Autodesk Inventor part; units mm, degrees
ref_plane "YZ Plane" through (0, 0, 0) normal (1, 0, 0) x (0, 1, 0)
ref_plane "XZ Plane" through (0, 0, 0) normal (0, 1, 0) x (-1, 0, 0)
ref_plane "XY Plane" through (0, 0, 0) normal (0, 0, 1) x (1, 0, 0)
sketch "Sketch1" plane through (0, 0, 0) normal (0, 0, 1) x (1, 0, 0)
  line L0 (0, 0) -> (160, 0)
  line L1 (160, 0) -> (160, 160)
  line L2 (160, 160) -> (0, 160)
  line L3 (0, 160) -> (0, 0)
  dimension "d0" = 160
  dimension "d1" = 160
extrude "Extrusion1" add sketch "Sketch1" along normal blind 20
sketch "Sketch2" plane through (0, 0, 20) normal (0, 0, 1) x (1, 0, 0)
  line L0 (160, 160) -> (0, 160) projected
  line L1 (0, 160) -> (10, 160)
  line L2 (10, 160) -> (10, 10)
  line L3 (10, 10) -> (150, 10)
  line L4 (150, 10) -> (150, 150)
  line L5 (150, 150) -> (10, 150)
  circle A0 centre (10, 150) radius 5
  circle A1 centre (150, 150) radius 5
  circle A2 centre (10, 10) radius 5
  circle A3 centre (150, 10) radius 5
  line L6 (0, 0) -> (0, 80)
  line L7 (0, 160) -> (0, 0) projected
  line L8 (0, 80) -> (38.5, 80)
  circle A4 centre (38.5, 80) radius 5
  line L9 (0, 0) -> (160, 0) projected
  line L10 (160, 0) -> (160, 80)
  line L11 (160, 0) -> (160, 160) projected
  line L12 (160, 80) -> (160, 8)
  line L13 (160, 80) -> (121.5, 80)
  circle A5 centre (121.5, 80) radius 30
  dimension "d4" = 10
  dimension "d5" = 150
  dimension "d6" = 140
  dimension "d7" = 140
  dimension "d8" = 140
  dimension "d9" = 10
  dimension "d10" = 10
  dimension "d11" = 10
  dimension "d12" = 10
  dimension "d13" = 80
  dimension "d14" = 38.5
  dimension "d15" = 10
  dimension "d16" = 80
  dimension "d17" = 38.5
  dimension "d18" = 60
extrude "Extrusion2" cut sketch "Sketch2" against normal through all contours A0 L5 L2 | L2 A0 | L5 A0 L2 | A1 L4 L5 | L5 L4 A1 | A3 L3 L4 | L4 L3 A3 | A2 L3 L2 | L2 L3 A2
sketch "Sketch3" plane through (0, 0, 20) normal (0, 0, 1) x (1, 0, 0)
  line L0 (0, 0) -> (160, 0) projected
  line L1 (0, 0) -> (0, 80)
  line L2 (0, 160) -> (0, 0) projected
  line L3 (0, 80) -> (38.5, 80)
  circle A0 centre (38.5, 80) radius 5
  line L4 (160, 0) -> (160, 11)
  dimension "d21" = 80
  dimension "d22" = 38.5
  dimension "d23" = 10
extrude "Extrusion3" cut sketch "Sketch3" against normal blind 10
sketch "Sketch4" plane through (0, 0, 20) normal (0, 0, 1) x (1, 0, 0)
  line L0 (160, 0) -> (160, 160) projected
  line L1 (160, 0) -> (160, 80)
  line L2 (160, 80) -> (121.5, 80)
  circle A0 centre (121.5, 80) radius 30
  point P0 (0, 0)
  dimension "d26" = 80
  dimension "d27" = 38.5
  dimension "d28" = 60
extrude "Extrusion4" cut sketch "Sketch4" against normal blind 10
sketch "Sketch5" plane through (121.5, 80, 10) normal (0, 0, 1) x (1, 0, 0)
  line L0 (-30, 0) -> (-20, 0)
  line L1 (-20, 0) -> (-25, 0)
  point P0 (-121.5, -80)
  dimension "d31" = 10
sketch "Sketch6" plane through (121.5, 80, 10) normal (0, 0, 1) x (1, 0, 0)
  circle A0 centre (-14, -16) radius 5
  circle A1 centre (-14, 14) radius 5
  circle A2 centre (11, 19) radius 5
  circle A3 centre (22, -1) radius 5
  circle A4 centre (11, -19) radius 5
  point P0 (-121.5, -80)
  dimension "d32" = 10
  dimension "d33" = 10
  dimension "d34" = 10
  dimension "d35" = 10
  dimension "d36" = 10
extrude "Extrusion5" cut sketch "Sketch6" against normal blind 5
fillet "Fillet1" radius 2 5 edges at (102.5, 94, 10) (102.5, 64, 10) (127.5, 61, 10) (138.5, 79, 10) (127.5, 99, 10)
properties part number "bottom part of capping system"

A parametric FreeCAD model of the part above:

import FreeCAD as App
import Part
import Sketcher
from FreeCAD import Vector


def edges_at(feature, points):
    """Names of the edges that pass closest to the given points."""
    edges = feature.Shape.Edges
    near = lambda p: min(range(len(edges)), key=lambda i: edges[i].distToShape(Part.Vertex(*p))[0])
    return sorted({f"Edge{near(p) + 1}" for p in points})

doc = App.newDocument("Part")
params = doc.addObject("Spreadsheet::Sheet", "Params")
for row, (alias, value) in enumerate([
    ("sketch1_width", "160 mm"),
    ("pad1_length", "20 mm"),
    ("sketch2_diameter", "10 mm"),
    ("sketch3_diameter", "10 mm"),
    ("pocket2_length", "10 mm"),
    ("sketch4_diameter", "60 mm"),
    ("pocket3_length", "10 mm"),
    ("sketch5_diameter", "10 mm"),
    ("pocket4_length", "5 mm"),
    ("fillet_radius", "2 mm"),
], start=1):
    params.set(f"A{row}", alias)
    params.set(f"B{row}", "=" + value)
    params.setAlias(f"B{row}", alias)

body = doc.addObject("PartDesign::Body", "Body")

# Sketch on XY plane
sketch1 = body.newObject("Sketcher::SketchObject", "Sketch")
sketch1.AttachmentSupport = (doc.getObject("XY_Plane"), [""])
sketch1.MapMode = "FlatFace"
sketch1.addGeometry(Part.LineSegment(Vector(0, 160, 0), Vector(0, 0, 0)), False)
sketch1.addGeometry(Part.LineSegment(Vector(0, 0, 0), Vector(160, 0, 0)), False)
sketch1.addGeometry(Part.LineSegment(Vector(160, 0, 0), Vector(160, 160, 0)), False)
sketch1.addGeometry(Part.LineSegment(Vector(160, 160, 0), Vector(0, 160, 0)), False)
sketch1.addConstraint(Sketcher.Constraint("Coincident", 0, 2, 1, 1))
sketch1.addConstraint(Sketcher.Constraint("Coincident", 1, 2, 2, 1))
sketch1.addConstraint(Sketcher.Constraint("Coincident", 2, 2, 3, 1))
sketch1.addConstraint(Sketcher.Constraint("Coincident", 3, 2, 0, 1))
sketch1.addConstraint(Sketcher.Constraint("Vertical", 0))
sketch1.addConstraint(Sketcher.Constraint("Horizontal", 1))
sketch1.addConstraint(Sketcher.Constraint("Vertical", 2))
sketch1.addConstraint(Sketcher.Constraint("Horizontal", 3))
sketch1.addConstraint(Sketcher.Constraint("Coincident", 0, 2, -1, 1))
sketch1.addConstraint(Sketcher.Constraint("Equal", 3, 0))
sketch1.addConstraint(Sketcher.Constraint("DistanceX", 1, 1, 1, 2, 160.0))
sketch1.setExpression("Constraints[10]", "Params.sketch1_width")
pad1 = body.newObject("PartDesign::Pad", "Pad")
pad1.Profile = sketch1
pad1.setExpression("Length", "Params.pad1_length")

# Sketch on XY plane
sketch2 = body.newObject("Sketcher::SketchObject", "Sketch001")
sketch2.AttachmentSupport = (doc.getObject("XY_Plane"), [""])
sketch2.MapMode = "FlatFace"
sketch2.AttachmentOffset = App.Placement(Vector(0, 0, 20), App.Rotation())
sketch2.addGeometry(Part.Circle(Vector(10, 150, 0), Vector(0, 0, 1), 5), False)
sketch2.addGeometry(Part.Circle(Vector(150, 150, 0), Vector(0, 0, 1), 5), False)
sketch2.addGeometry(Part.Circle(Vector(150, 10, 0), Vector(0, 0, 1), 5), False)
sketch2.addGeometry(Part.Circle(Vector(10, 10, 0), Vector(0, 0, 1), 5), False)
sketch2.addConstraint(Sketcher.Constraint("Equal", 0, 1))
sketch2.addConstraint(Sketcher.Constraint("Equal", 1, 2))
sketch2.addConstraint(Sketcher.Constraint("Equal", 2, 3))
sketch2.addConstraint(Sketcher.Constraint("Horizontal", 0, 3, 1, 3))
sketch2.addConstraint(Sketcher.Constraint("Horizontal", 2, 3, 3, 3))
sketch2.addConstraint(Sketcher.Constraint("Vertical", 1, 3, 2, 3))
sketch2.addConstraint(Sketcher.Constraint("Vertical", 0, 3, 3, 3))
sketch2.addConstraint(Sketcher.Constraint("Diameter", 0, 10.0))
sketch2.addConstraint(Sketcher.Constraint("DistanceX", -1, 1, 0, 3, 10.0))
sketch2.addConstraint(Sketcher.Constraint("DistanceY", -1, 1, 0, 3, 150.0))
sketch2.addConstraint(Sketcher.Constraint("DistanceX", -1, 1, 1, 3, 150.0))
sketch2.addConstraint(Sketcher.Constraint("DistanceY", -1, 1, 2, 3, 10.0))
sketch2.setExpression("Constraints[7]", "Params.sketch2_diameter")
pocket1 = body.newObject("PartDesign::Pocket", "Pocket")
pocket1.Profile = sketch2
pocket1.Type = "ThroughAll"

# Sketch on XY plane
sketch3 = body.newObject("Sketcher::SketchObject", "Sketch002")
sketch3.AttachmentSupport = (doc.getObject("XY_Plane"), [""])
sketch3.MapMode = "FlatFace"
sketch3.AttachmentOffset = App.Placement(Vector(0, 0, 20), App.Rotation())
sketch3.addGeometry(Part.Circle(Vector(38, 80, 0), Vector(0, 0, 1), 5), False)
sketch3.addConstraint(Sketcher.Constraint("Diameter", 0, 10.0))
sketch3.addConstraint(Sketcher.Constraint("DistanceY", -1, 1, 0, 3, 80.0))
sketch3.addConstraint(Sketcher.Constraint("DistanceX", -1, 1, 0, 3, 38.5))
sketch3.setExpression("Constraints[0]", "Params.sketch3_diameter")
pocket2 = body.newObject("PartDesign::Pocket", "Pocket001")
pocket2.Profile = sketch3
pocket2.setExpression("Length", "Params.pocket2_length")

# Sketch on XY plane
sketch4 = body.newObject("Sketcher::SketchObject", "Sketch003")
sketch4.AttachmentSupport = (doc.getObject("XY_Plane"), [""])
sketch4.MapMode = "FlatFace"
sketch4.AttachmentOffset = App.Placement(Vector(0, 0, 20), App.Rotation())
sketch4.addGeometry(Part.Circle(Vector(122, 80, 0), Vector(0, 0, 1), 30), False)
sketch4.addConstraint(Sketcher.Constraint("Diameter", 0, 60.0))
sketch4.addConstraint(Sketcher.Constraint("DistanceY", -1, 1, 0, 3, 80.0))
sketch4.addConstraint(Sketcher.Constraint("DistanceX", -1, 1, 0, 3, 121.5))
sketch4.setExpression("Constraints[0]", "Params.sketch4_diameter")
pocket3 = body.newObject("PartDesign::Pocket", "Pocket002")
pocket3.Profile = sketch4
pocket3.setExpression("Length", "Params.pocket3_length")

# Sketch on XY plane
sketch5 = body.newObject("Sketcher::SketchObject", "Sketch004")
sketch5.AttachmentSupport = (doc.getObject("XY_Plane"), [""])
sketch5.MapMode = "FlatFace"
sketch5.AttachmentOffset = App.Placement(Vector(0, 0, 10), App.Rotation())
sketch5.addGeometry(Part.Circle(Vector(108, 64, 0), Vector(0, 0, 1), 5), False)
sketch5.addGeometry(Part.Circle(Vector(108, 94, 0), Vector(0, 0, 1), 5), False)
sketch5.addGeometry(Part.Circle(Vector(132, 99, 0), Vector(0, 0, 1), 5), False)
sketch5.addGeometry(Part.Circle(Vector(144, 79, 0), Vector(0, 0, 1), 5), False)
sketch5.addGeometry(Part.Circle(Vector(132, 61, 0), Vector(0, 0, 1), 5), False)
sketch5.addConstraint(Sketcher.Constraint("Equal", 0, 1))
sketch5.addConstraint(Sketcher.Constraint("Equal", 1, 2))
sketch5.addConstraint(Sketcher.Constraint("Equal", 2, 3))
sketch5.addConstraint(Sketcher.Constraint("Equal", 3, 4))
sketch5.addConstraint(Sketcher.Constraint("Vertical", 0, 3, 1, 3))
sketch5.addConstraint(Sketcher.Constraint("Vertical", 2, 3, 4, 3))
sketch5.addConstraint(Sketcher.Constraint("Diameter", 0, 10.0))
sketch5.addConstraint(Sketcher.Constraint("DistanceY", -1, 1, 0, 3, 64.0))
sketch5.addConstraint(Sketcher.Constraint("DistanceY", -1, 1, 1, 3, 94.0))
sketch5.addConstraint(Sketcher.Constraint("DistanceY", -1, 1, 2, 3, 99.0))
sketch5.addConstraint(Sketcher.Constraint("DistanceY", -1, 1, 3, 3, 79.0))
sketch5.addConstraint(Sketcher.Constraint("DistanceY", -1, 1, 4, 3, 61.0))
sketch5.addConstraint(Sketcher.Constraint("DistanceX", 1, 3, 2, 3, 25.0))
sketch5.addConstraint(Sketcher.Constraint("DistanceX", 2, 3, 3, 3, 11.0))
sketch5.addConstraint(Sketcher.Constraint("DistanceX", -1, 1, 0, 3, 107.5))
sketch5.setExpression("Constraints[6]", "Params.sketch5_diameter")
pocket4 = body.newObject("PartDesign::Pocket", "Pocket003")
pocket4.Profile = sketch5
pocket4.setExpression("Length", "Params.pocket4_length")
doc.recompute()

fillet = body.newObject("PartDesign::Fillet", "Fillet")
fillet.Base = (pocket4, edges_at(pocket4, [
    (102.5, 94, 10),
    (102.5, 64, 10),
    (127.5, 61, 10),
    (138.5, 79, 10),
    (127.5, 99, 10),
]))
fillet.setExpression("Radius", "Params.fillet_radius")

doc.recompute()
